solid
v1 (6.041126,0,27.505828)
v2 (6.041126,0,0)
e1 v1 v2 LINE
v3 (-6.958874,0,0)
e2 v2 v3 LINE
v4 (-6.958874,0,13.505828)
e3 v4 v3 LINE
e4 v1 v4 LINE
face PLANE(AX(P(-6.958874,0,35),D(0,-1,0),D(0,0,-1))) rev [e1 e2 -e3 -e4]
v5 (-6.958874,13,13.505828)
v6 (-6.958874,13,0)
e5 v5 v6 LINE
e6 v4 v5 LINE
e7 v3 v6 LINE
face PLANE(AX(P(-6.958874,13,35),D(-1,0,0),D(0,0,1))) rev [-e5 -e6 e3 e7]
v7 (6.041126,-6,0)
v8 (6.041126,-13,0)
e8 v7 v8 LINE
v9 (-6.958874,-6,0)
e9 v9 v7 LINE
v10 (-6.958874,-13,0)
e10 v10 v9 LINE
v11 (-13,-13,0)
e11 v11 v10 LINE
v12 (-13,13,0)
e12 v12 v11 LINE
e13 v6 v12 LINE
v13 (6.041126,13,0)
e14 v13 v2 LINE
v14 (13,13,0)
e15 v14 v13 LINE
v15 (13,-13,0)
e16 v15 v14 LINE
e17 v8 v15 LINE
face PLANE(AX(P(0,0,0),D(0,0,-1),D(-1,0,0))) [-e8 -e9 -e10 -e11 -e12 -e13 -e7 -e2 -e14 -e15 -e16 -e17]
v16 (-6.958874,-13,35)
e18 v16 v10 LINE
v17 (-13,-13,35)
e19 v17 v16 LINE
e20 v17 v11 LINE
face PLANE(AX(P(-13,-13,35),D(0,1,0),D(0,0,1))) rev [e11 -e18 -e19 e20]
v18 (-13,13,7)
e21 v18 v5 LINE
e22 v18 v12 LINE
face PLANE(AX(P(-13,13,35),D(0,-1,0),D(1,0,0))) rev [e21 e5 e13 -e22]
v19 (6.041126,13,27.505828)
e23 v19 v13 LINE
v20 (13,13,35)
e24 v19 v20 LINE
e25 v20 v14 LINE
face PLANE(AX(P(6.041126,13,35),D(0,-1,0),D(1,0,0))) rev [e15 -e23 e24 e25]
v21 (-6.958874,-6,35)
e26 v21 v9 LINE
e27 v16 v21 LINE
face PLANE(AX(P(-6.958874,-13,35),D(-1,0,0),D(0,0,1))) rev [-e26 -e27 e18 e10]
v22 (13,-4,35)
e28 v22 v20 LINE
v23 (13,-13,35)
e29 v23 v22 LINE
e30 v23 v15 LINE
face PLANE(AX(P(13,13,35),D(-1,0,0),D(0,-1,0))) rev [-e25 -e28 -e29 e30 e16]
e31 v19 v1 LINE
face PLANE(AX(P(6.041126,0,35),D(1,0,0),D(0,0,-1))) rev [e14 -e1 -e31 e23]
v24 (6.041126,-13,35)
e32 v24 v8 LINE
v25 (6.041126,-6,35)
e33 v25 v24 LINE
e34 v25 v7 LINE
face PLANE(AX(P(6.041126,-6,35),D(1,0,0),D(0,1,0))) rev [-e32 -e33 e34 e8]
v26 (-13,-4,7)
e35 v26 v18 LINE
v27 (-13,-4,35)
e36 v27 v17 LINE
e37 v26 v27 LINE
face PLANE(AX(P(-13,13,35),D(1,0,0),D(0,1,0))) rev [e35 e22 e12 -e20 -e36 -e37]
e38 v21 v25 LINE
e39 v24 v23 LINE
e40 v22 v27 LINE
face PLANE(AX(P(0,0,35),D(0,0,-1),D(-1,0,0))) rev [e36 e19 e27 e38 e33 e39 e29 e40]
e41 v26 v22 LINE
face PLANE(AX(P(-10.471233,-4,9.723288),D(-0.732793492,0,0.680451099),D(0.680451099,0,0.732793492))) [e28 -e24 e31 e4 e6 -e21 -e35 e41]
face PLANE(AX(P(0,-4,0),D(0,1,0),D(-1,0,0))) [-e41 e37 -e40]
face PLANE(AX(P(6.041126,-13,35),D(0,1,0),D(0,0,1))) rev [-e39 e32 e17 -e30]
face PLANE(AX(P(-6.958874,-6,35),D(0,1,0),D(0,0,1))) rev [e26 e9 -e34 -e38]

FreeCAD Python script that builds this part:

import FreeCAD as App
import Part
import Sketcher
from FreeCAD import Vector
Q = App.Units.Quantity


def add_polygon(sketch, points):
    """Adds a closed chain of lines whose ends are joined by coincident constraints."""
    first, n = sketch.GeometryCount, len(points)
    for a, b in zip(points, points[1:] + points[:1]):
        sketch.addGeometry(Part.LineSegment(App.Vector(*a, 0), App.Vector(*b, 0)), False)
    for i in range(n):
        sketch.addConstraint(Sketcher.Constraint("Coincident", first + i, 2, first + (i + 1) % n, 1))

doc = App.newDocument("Part")
body = doc.addObject("PartDesign::Body", "Body")

# Sketch on XY plane
sketch1 = doc.addObject("Sketcher::SketchObject", "Sketch")
body.addObject(sketch1)
sketch1.AttachmentSupport = (doc.XY_Plane, [""])
sketch1.MapMode = "FlatFace"
add_polygon(sketch1, [(-7, 0), (-7, 13), (-13, 13), (-13, -13), (-7, -13), (-7, -6), (6, -6), (6, -13), (13, -13), (13, 13), (6, 13), (6, 0)])  # lines 0-11
sketch1.addConstraint(Sketcher.Constraint("Vertical", 0))
sketch1.addConstraint(Sketcher.Constraint("Horizontal", 1))
sketch1.addConstraint(Sketcher.Constraint("Vertical", 2))
sketch1.addConstraint(Sketcher.Constraint("Horizontal", 3))
sketch1.addConstraint(Sketcher.Constraint("Vertical", 4))
sketch1.addConstraint(Sketcher.Constraint("Horizontal", 5))
sketch1.addConstraint(Sketcher.Constraint("Vertical", 6))
sketch1.addConstraint(Sketcher.Constraint("Horizontal", 7))
sketch1.addConstraint(Sketcher.Constraint("Vertical", 8))
sketch1.addConstraint(Sketcher.Constraint("Horizontal", 9))
sketch1.addConstraint(Sketcher.Constraint("Vertical", 10))
sketch1.addConstraint(Sketcher.Constraint("Horizontal", 11))
sketch1.addConstraint(Sketcher.Constraint("Symmetric", 1, 2, 7, 2, -1, 1))
sketch1.addConstraint(Sketcher.Constraint("Symmetric", 0, 2, 3, 2, -1))
sketch1.addConstraint(Sketcher.Constraint("Symmetric", 6, 2, 9, 2, -1))
sketch1.addConstraint(Sketcher.Constraint("PointOnObject", 10, 2, -1))
sketch1.addConstraint(Sketcher.Constraint("Equal", 11, 0))
sketch1.addConstraint(Sketcher.Constraint("DistanceX", 5, 1, 5, 2, Q("13 mm")))
sketch1.addConstraint(Sketcher.Constraint("DistanceY", 4, 1, 4, 2, Q("7 mm")))
sketch1.addConstraint(Sketcher.Constraint("DistanceX", 1, 2, -1, 1, Q("13 mm")))
sketch1.addConstraint(Sketcher.Constraint("DistanceX", 1, 2, 1, 1, Q("6.041126 mm")))
pad1 = doc.addObject("PartDesign::Pad", "Pad")
body.addObject(pad1)
pad1.Profile = sketch1
pad1.Length = 35

# Sketch on XZ plane
sketch2 = doc.addObject("Sketcher::SketchObject", "Sketch001")
body.addObject(sketch2)
sketch2.AttachmentSupport = (doc.XZ_Plane, [""])
sketch2.MapMode = "FlatFace"
sketch2.AttachmentOffset = App.Placement(Vector(0, 0, -13), App.Rotation())
add_polygon(sketch2, [(13, 35), (-7, 14), (-13, 7), (-13, 35)])  # lines 0-3
sketch2.addConstraint(Sketcher.Constraint("Vertical", 2))
sketch2.addConstraint(Sketcher.Constraint("Horizontal", 3))
sketch2.addConstraint(Sketcher.Constraint("Parallel", 0, 1))
sketch2.addConstraint(Sketcher.Constraint("DistanceX", 3, 1, 3, 2, Q("26 mm")))
sketch2.addConstraint(Sketcher.Constraint("DistanceY", 2, 1, 2, 2, Q("28 mm")))
sketch2.addConstraint(Sketcher.Constraint("DistanceX", 1, 2, -1, 1, Q("13 mm")))
sketch2.addConstraint(Sketcher.Constraint("DistanceY", -1, 1, 1, 2, Q("7 mm")))
sketch2.addConstraint(Sketcher.Constraint("Distance", 1, Q("8.878119 mm")))
pocket1 = doc.addObject("PartDesign::Pocket", "Pocket")
body.addObject(pocket1)
pocket1.Profile = sketch2
pocket1.Length = 17
pocket1.Reversed = True

doc.recompute()
